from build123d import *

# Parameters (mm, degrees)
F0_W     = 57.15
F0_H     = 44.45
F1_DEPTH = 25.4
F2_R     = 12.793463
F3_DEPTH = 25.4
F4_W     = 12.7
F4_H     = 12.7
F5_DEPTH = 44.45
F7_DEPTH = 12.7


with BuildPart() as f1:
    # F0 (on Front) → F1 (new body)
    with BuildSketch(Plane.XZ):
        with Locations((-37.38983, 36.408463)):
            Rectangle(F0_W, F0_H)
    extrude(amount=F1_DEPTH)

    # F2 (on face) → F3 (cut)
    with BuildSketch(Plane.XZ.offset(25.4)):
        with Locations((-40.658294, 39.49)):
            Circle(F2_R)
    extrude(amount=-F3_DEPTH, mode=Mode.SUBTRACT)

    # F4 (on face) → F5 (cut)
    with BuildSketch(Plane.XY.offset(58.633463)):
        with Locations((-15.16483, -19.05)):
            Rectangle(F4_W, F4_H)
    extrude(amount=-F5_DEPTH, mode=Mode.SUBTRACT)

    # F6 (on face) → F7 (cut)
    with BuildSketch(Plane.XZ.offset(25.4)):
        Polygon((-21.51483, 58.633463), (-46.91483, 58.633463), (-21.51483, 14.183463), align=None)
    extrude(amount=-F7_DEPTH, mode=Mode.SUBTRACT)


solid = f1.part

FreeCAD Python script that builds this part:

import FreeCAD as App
import Part
import Sketcher

V = App.Vector
Q = App.Units.Quantity

doc = App.newDocument("Part")
body = doc.addObject("PartDesign::Body", "Body")

sketch1 = body.newObject("Sketcher::SketchObject", "Sketch")
sketch1.AttachmentSupport = (doc.getObject("XZ_Plane"), [""])
sketch1.MapMode = "FlatFace"
sketch1.addGeometry([
    Part.LineSegment(V(-66, 59, 0), V(-66, 14, 0)),
    Part.LineSegment(V(-66, 14, 0), V(-9, 14, 0)),
    Part.LineSegment(V(-9, 14, 0), V(-9, 59, 0)),
    Part.LineSegment(V(-9, 59, 0), V(-66, 59, 0)),
], False)
sketch1.addConstraint([
    Sketcher.Constraint("Coincident", 0, 2, 1, 1),
    Sketcher.Constraint("Coincident", 1, 2, 2, 1),
    Sketcher.Constraint("Coincident", 2, 2, 3, 1),
    Sketcher.Constraint("Coincident", 3, 2, 0, 1),
    Sketcher.Constraint("Vertical", 0),
    Sketcher.Constraint("Horizontal", 1),
    Sketcher.Constraint("Vertical", 2),
    Sketcher.Constraint("Horizontal", 3),
    Sketcher.Constraint("DistanceX", 1, 1, 1, 2, Q("2.25 in")),
    Sketcher.Constraint("DistanceY", 0, 2, 0, 1, Q("1.75 in")),
    Sketcher.Constraint("DistanceX", 0, 2, -1, 1, 65.96483),
    Sketcher.Constraint("DistanceY", -1, 1, 0, 2, 14.183463),
])
pad1 = body.newObject("PartDesign::Pad", "Pad")
pad1.Profile = sketch1
pad1.Length = Q("1 in")

sketch2 = body.newObject("Sketcher::SketchObject", "Sketch001")
sketch2.AttachmentSupport = (doc.getObject("XZ_Plane"), [""])
sketch2.MapMode = "FlatFace"
sketch2.AttachmentOffset = App.Placement(V(0, 0, 1 * 25.4), App.Rotation())
sketch2.addGeometry(Part.Circle(V(-41, 39, 0), V(0, 0, 1), 13), False)
sketch2.addConstraint([
    Sketcher.Constraint("Diameter", 0, 25.586926),
    Sketcher.Constraint("DistanceY", -1, 1, 0, 3, 39.49),
    Sketcher.Constraint("DistanceX", 0, 3, -1, 1, 40.658294),
])
pocket1 = body.newObject("PartDesign::Pocket", "Pocket")
pocket1.Profile = sketch2
pocket1.Length = Q("1 in")

sketch3 = body.newObject("Sketcher::SketchObject", "Sketch002")
sketch3.AttachmentSupport = (doc.getObject("XY_Plane"), [""])
sketch3.MapMode = "FlatFace"
sketch3.AttachmentOffset = App.Placement(V(0, 0, 58.633463), App.Rotation())
sketch3.addGeometry([
    Part.LineSegment(V(-22, -13, 0), V(-22, -25, 0)),
    Part.LineSegment(V(-22, -25, 0), V(-9, -25, 0)),
    Part.LineSegment(V(-9, -25, 0), V(-9, -13, 0)),
    Part.LineSegment(V(-9, -13, 0), V(-22, -13, 0)),
], False)
sketch3.addConstraint([
    Sketcher.Constraint("Coincident", 0, 2, 1, 1),
    Sketcher.Constraint("Coincident", 1, 2, 2, 1),
    Sketcher.Constraint("Coincident", 2, 2, 3, 1),
    Sketcher.Constraint("Coincident", 3, 2, 0, 1),
    Sketcher.Constraint("Vertical", 0),
    Sketcher.Constraint("Horizontal", 1),
    Sketcher.Constraint("Vertical", 2),
    Sketcher.Constraint("Horizontal", 3),
    Sketcher.Constraint("Equal", 3, 0),
    Sketcher.Constraint("DistanceX", 1, 1, 1, 2, Q("0.5 in")),
    Sketcher.Constraint("DistanceY", 0, 2, -1, 1, Q("1 in")),
    Sketcher.Constraint("DistanceX", 0, 2, -1, 1, 21.51483),
])
pocket2 = body.newObject("PartDesign::Pocket", "Pocket001")
pocket2.Profile = sketch3
pocket2.Length = Q("1.75 in")

sketch4 = body.newObject("Sketcher::SketchObject", "Sketch003")
sketch4.AttachmentSupport = (doc.getObject("XZ_Plane"), [""])
sketch4.MapMode = "FlatFace"
sketch4.AttachmentOffset = App.Placement(V(0, 0, 1 * 25.4), App.Rotation())
sketch4.addGeometry([
    Part.LineSegment(V(-22, 59, 0), V(-47, 59, 0)),
    Part.LineSegment(V(-47, 59, 0), V(-22, 14, 0)),
    Part.LineSegment(V(-22, 14, 0), V(-22, 59, 0)),
], False)
sketch4.addConstraint([
    Sketcher.Constraint("Coincident", 0, 2, 1, 1),
    Sketcher.Constraint("Coincident", 1, 2, 2, 1),
    Sketcher.Constraint("Coincident", 2, 2, 0, 1),
    Sketcher.Constraint("Horizontal", 0),
    Sketcher.Constraint("Vertical", 2),
    Sketcher.Constraint("DistanceX", 0, 2, 0, 1, Q("1 in")),
    Sketcher.Constraint("DistanceY", 2, 1, 2, 2, Q("1.75 in")),
    Sketcher.Constraint("DistanceX", 0, 2, -1, 1, 46.91483),
    Sketcher.Constraint("DistanceY", -1, 1, 0, 2, 58.633463),
])
pocket3 = body.newObject("PartDesign::Pocket", "Pocket002")
pocket3.Profile = sketch4
pocket3.Length = Q("0.5 in")

doc.recompute()
